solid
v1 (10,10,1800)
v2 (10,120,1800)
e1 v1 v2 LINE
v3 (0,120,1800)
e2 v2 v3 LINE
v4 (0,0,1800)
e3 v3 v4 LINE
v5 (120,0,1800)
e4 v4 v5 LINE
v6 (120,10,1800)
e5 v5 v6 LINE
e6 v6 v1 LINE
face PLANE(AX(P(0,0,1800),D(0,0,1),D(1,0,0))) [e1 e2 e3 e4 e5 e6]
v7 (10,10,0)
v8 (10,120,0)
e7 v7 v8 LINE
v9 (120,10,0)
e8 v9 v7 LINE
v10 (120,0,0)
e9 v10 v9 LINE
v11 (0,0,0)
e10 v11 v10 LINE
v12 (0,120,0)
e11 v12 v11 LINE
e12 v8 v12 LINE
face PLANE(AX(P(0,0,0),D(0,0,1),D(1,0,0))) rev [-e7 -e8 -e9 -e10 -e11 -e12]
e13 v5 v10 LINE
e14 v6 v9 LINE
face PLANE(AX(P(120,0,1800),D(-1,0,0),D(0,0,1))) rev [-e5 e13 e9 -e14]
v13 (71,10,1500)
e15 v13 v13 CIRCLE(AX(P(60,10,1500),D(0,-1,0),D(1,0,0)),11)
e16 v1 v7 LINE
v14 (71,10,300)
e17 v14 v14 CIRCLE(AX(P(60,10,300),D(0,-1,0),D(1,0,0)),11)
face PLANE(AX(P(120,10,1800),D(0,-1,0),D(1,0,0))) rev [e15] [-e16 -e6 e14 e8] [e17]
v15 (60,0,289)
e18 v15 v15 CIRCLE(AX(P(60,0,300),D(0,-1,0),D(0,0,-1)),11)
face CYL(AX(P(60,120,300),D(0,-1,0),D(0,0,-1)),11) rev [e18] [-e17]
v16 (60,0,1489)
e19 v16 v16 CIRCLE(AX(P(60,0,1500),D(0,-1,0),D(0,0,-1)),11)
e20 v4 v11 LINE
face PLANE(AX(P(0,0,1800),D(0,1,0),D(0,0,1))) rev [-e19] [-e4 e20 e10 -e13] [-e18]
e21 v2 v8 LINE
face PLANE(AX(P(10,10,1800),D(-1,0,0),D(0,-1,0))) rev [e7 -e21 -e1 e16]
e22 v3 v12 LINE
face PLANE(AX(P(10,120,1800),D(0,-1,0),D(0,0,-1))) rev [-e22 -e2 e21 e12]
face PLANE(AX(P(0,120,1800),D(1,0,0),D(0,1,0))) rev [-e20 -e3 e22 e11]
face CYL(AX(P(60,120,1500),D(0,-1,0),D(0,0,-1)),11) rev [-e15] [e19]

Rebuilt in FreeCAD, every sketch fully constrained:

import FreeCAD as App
import Part
import Sketcher
from FreeCAD import Vector


def add_polygon(sketch, points):
    """Adds a closed chain of lines whose ends are joined by coincident constraints."""
    first, n = sketch.GeometryCount, len(points)
    for a, b in zip(points, points[1:] + points[:1]):
        sketch.addGeometry(Part.LineSegment(App.Vector(*a, 0), App.Vector(*b, 0)), False)
    for i in range(n):
        sketch.addConstraint(Sketcher.Constraint("Coincident", first + i, 2, first + (i + 1) % n, 1))

doc = App.newDocument("Part")
body = doc.addObject("PartDesign::Body", "Body")

# Sketch on XY plane
sketch1 = body.newObject("Sketcher::SketchObject", "Sketch")
sketch1.AttachmentSupport = (doc.getObject("XY_Plane"), [""])
sketch1.MapMode = "FlatFace"
add_polygon(sketch1, [(0, 0), (120, 0), (120, 10), (10, 10), (10, 120), (0, 120)])  # lines 0-5
sketch1.addConstraint([
    Sketcher.Constraint("Horizontal", 0),
    Sketcher.Constraint("Vertical", 1),
    Sketcher.Constraint("Horizontal", 2),
    Sketcher.Constraint("Vertical", 3),
    Sketcher.Constraint("Horizontal", 4),
    Sketcher.Constraint("Vertical", 5),
    Sketcher.Constraint("Coincident", 5, 2, -1, 1),
    Sketcher.Constraint("Equal", 4, 1),
    Sketcher.Constraint("Equal", 2, 3),
    Sketcher.Constraint("DistanceX", 0, 1, 0, 2, 120.0),
    Sketcher.Constraint("DistanceX", 2, 2, 2, 1, 110.0),
])
pad1 = body.newObject("PartDesign::Pad", "Pad")
pad1.Profile = sketch1
pad1.Length = 1800

# Sketch on XZ plane
sketch2 = body.newObject("Sketcher::SketchObject", "Sketch001")
sketch2.AttachmentSupport = (doc.getObject("XZ_Plane"), [""])
sketch2.MapMode = "FlatFace"
sketch2.addGeometry([
    Part.Circle(Vector(60, 1500, 0), Vector(0, 0, 1), 11),
    Part.Circle(Vector(60, 300, 0), Vector(0, 0, 1), 11),
], False)
sketch2.addConstraint([
    Sketcher.Constraint("Equal", 0, 1),
    Sketcher.Constraint("Vertical", 0, 3, 1, 3),
    Sketcher.Constraint("Diameter", 0, 22.0),
    Sketcher.Constraint("DistanceX", -1, 1, 0, 3, 60.0),
    Sketcher.Constraint("DistanceY", -1, 1, 0, 3, 1500.0),
    Sketcher.Constraint("DistanceY", -1, 1, 1, 3, 300.0),
])
pocket1 = body.newObject("PartDesign::Pocket", "Pocket")
pocket1.Profile = sketch2
pocket1.Type = "ThroughAll"

doc.recompute()
